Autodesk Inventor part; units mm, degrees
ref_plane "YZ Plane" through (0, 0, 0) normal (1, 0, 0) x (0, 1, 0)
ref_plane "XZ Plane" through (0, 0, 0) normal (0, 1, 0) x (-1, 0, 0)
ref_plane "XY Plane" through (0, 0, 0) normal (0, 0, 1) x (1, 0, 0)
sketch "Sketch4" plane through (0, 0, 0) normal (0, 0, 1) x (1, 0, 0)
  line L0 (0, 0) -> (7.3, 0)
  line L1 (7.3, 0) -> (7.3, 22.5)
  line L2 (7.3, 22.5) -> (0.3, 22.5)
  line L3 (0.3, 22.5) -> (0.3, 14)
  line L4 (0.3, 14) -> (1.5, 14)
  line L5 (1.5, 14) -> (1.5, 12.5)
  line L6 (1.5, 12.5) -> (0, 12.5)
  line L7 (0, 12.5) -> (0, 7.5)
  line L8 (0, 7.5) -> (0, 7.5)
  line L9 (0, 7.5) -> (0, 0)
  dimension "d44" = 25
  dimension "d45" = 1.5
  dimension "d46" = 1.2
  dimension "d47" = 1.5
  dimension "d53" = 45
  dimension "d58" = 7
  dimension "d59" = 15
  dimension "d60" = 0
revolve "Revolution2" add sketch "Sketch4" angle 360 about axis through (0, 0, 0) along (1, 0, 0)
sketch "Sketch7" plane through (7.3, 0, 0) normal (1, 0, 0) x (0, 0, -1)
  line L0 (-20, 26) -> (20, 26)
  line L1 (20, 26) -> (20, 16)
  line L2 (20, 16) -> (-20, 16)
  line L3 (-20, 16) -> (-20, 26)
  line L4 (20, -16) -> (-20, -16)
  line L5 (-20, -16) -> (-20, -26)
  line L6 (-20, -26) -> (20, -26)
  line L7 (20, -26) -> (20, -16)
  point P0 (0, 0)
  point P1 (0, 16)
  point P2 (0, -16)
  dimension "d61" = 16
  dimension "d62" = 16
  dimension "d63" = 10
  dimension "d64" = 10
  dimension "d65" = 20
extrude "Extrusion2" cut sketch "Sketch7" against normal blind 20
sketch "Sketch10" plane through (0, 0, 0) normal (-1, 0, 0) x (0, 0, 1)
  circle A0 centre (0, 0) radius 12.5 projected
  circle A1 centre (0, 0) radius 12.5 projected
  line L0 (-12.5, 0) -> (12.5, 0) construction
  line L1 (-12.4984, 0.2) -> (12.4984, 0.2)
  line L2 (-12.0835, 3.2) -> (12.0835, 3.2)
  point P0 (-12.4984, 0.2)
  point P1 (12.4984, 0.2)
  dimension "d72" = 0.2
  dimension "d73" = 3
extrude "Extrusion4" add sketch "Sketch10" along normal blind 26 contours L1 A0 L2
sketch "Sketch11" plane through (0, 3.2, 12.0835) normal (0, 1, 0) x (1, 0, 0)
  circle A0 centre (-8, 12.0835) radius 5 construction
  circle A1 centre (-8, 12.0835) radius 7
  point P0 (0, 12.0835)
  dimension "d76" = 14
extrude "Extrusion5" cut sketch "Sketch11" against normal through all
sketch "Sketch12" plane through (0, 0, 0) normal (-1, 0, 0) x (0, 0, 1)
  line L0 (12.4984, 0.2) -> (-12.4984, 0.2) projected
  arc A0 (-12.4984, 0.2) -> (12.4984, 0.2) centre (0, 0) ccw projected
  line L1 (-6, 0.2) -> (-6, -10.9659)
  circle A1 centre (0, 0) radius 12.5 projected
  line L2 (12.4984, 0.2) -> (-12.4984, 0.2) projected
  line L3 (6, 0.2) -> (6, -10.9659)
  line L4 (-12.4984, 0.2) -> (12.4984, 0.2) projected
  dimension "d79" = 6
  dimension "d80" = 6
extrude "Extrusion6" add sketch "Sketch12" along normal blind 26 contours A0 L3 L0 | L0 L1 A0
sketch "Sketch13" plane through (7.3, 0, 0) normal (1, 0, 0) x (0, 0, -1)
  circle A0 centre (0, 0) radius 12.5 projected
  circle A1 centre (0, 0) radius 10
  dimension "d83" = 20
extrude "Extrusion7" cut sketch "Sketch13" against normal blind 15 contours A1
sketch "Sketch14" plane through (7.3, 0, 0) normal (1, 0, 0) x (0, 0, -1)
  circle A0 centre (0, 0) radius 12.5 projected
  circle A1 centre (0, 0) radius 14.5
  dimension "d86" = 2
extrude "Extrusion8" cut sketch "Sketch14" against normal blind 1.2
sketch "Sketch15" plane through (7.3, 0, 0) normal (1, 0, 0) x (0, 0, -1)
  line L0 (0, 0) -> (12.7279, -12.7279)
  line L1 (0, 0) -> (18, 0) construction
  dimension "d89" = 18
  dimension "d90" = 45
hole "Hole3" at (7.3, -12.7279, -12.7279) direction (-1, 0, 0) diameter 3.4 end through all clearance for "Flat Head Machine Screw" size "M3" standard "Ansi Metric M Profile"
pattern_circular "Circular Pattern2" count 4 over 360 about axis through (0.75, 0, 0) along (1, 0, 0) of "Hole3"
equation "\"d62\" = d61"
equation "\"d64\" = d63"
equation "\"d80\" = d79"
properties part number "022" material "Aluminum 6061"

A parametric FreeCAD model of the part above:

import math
import FreeCAD as App
import Part
import Sketcher
from FreeCAD import Vector
Q = App.Units.Quantity


def add_polygon(sketch, points):
    """Adds a closed chain of lines whose ends are joined by coincident constraints."""
    first, n = sketch.GeometryCount, len(points)
    for a, b in zip(points, points[1:] + points[:1]):
        sketch.addGeometry(Part.LineSegment(App.Vector(*a, 0), App.Vector(*b, 0)), False)
    for i in range(n):
        sketch.addConstraint(Sketcher.Constraint("Coincident", first + i, 2, first + (i + 1) % n, 1))

doc = App.newDocument("Part")
body = doc.addObject("PartDesign::Body", "Body")

sketch1 = doc.addObject("Sketcher::SketchObject", "Sketch")
body.addObject(sketch1)
sketch1.AttachmentSupport = (doc.XY_Plane, [""])
sketch1.MapMode = "FlatFace"
add_polygon(sketch1, [(0, 12.5), (0, 0), (7.3, 0), (7.3, 22.5), (0.3, 22.5), (0.3, 14), (1.5, 14), (1.5, 12.5)])
sketch1.addConstraint(Sketcher.Constraint("Vertical", 0))
sketch1.addConstraint(Sketcher.Constraint("Horizontal", 1))
sketch1.addConstraint(Sketcher.Constraint("Vertical", 2))
sketch1.addConstraint(Sketcher.Constraint("Horizontal", 3))
sketch1.addConstraint(Sketcher.Constraint("Vertical", 4))
sketch1.addConstraint(Sketcher.Constraint("Horizontal", 5))
sketch1.addConstraint(Sketcher.Constraint("Vertical", 6))
sketch1.addConstraint(Sketcher.Constraint("Horizontal", 7))
sketch1.addConstraint(Sketcher.Constraint("Coincident", 0, 2, -1, 1))
sketch1.addConstraint(Sketcher.Constraint("Equal", 7, 6))
sketch1.addConstraint(Sketcher.Constraint("DistanceX", 3, 2, 3, 1, Q("7 mm")))
sketch1.addConstraint(Sketcher.Constraint("DistanceX", 5, 1, 5, 2, Q("1.2 mm")))
sketch1.addConstraint(Sketcher.Constraint("DistanceX", 7, 2, 7, 1, Q("1.5 mm")))
sketch1.addConstraint(Sketcher.Constraint("DistanceY", 0, 2, 0, 1, Q("12.5 mm")))
sketch1.addConstraint(Sketcher.Constraint("DistanceY", 2, 1, 2, 2, Q("22.5 mm")))
revolution = doc.addObject("PartDesign::Revolution", "Revolution")
body.addObject(revolution)
revolution.Profile = sketch1
revolution.ReferenceAxis = (sketch1, ["H_Axis"])
revolution.Angle = 360

sketch2 = doc.addObject("Sketcher::SketchObject", "Sketch001")
body.addObject(sketch2)
sketch2.AttachmentSupport = (doc.YZ_Plane, [""])
sketch2.MapMode = "FlatFace"
sketch2.AttachmentOffset = App.Placement(Vector(0, 0, 7.3), App.Rotation())
add_polygon(sketch2, [(26, -20), (26, 20), (16, 20), (16, -20)])
add_polygon(sketch2, [(-26, -20), (-16, -20), (-16, 20), (-26, 20)])
sketch2.addConstraint(Sketcher.Constraint("Vertical", 0))
sketch2.addConstraint(Sketcher.Constraint("Horizontal", 1))
sketch2.addConstraint(Sketcher.Constraint("Vertical", 2))
sketch2.addConstraint(Sketcher.Constraint("Horizontal", 3))
sketch2.addConstraint(Sketcher.Constraint("Horizontal", 4))
sketch2.addConstraint(Sketcher.Constraint("Vertical", 5))
sketch2.addConstraint(Sketcher.Constraint("Horizontal", 6))
sketch2.addConstraint(Sketcher.Constraint("Vertical", 7))
sketch2.addConstraint(Sketcher.Constraint("Symmetric", 1, 2, 4, 2, -1, 1))
sketch2.addConstraint(Sketcher.Constraint("Symmetric", 3, 2, 6, 2, -1, 1))
sketch2.addConstraint(Sketcher.Constraint("Horizontal", 3, 2, 4, 2))
sketch2.addConstraint(Sketcher.Constraint("DistanceX", 1, 2, 1, 1, Q("10 mm")))
sketch2.addConstraint(Sketcher.Constraint("DistanceY", -1, 1, 0, 2, Q("20 mm")))
sketch2.addConstraint(Sketcher.Constraint("DistanceX", -1, 1, 1, 2, Q("16 mm")))
pocket1 = doc.addObject("PartDesign::Pocket", "Pocket")
body.addObject(pocket1)
pocket1.Profile = sketch2
pocket1.Length = 20

sketch3 = doc.addObject("Sketcher::SketchObject", "Sketch002")
body.addObject(sketch3)
sketch3.AttachmentSupport = (doc.YZ_Plane, [""])
sketch3.MapMode = "FlatFace"
sketch3.addGeometry(Part.LineSegment(Vector(0.2, -12.5, 0), Vector(0.2, 12.5, 0)), False)
sketch3.addGeometry(Part.ArcOfCircle(Part.Circle(Vector(0, 0, 0), Vector(0, 0, 1), 12.5), math.radians(75.17), math.radians(89.08)), False)
sketch3.addGeometry(Part.LineSegment(Vector(3.2, 12.1, 0), Vector(3.2, -12.1, 0)), False)
sketch3.addGeometry(Part.ArcOfCircle(Part.Circle(Vector(0, 0, 0), Vector(0, 0, 1), 12.5), math.radians(-89.08), math.radians(-75.17)), False)
sketch3.addConstraint(Sketcher.Constraint("Coincident", 0, 2, 1, 2))
sketch3.addConstraint(Sketcher.Constraint("Coincident", 1, 1, 2, 1))
sketch3.addConstraint(Sketcher.Constraint("Coincident", 2, 2, 3, 2))
sketch3.addConstraint(Sketcher.Constraint("Coincident", 3, 1, 0, 1))
sketch3.addConstraint(Sketcher.Constraint("Vertical", 0))
sketch3.addConstraint(Sketcher.Constraint("Vertical", 2))
sketch3.addConstraint(Sketcher.Constraint("Coincident", 1, 3, -1, 1))
sketch3.addConstraint(Sketcher.Constraint("Coincident", 3, 3, -1, 1))
sketch3.addConstraint(Sketcher.Constraint("Equal", 1, 3))
sketch3.addConstraint(Sketcher.Constraint("DistanceX", 0, 2, 1, 1, Q("3 mm")))
sketch3.addConstraint(Sketcher.Constraint("DistanceX", -1, 1, 0, 2, Q("0.2 mm")))
sketch3.addConstraint(Sketcher.Constraint("Radius", 1, Q("12.5 mm")))
pad1 = doc.addObject("PartDesign::Pad", "Pad")
body.addObject(pad1)
pad1.Profile = sketch3
pad1.Length = 26
pad1.Reversed = True

sketch4 = doc.addObject("Sketcher::SketchObject", "Sketch003")
body.addObject(sketch4)
sketch4.AttachmentSupport = (doc.XZ_Plane, [""])
sketch4.MapMode = "FlatFace"
sketch4.AttachmentOffset = App.Placement(Vector(0, 0, -3.2), App.Rotation())
sketch4.addGeometry(Part.Circle(Vector(-8, 0, 0), Vector(0, 0, 1), 7), False)
sketch4.addConstraint(Sketcher.Constraint("PointOnObject", 0, 3, -1))
sketch4.addConstraint(Sketcher.Constraint("Diameter", 0, Q("14 mm")))
sketch4.addConstraint(Sketcher.Constraint("DistanceX", 0, 3, -1, 1, Q("8 mm")))
pocket2 = doc.addObject("PartDesign::Pocket", "Pocket001")
body.addObject(pocket2)
pocket2.Profile = sketch4
pocket2.Type = "ThroughAll"
pocket2.Reversed = True

sketch5 = doc.addObject("Sketcher::SketchObject", "Sketch004")
body.addObject(sketch5)
sketch5.AttachmentSupport = (doc.YZ_Plane, [""])
sketch5.MapMode = "FlatFace"
sketch5.addGeometry(Part.ArcOfCircle(Part.Circle(Vector(0, 0, 0), Vector(0, 0, 1), 13), math.radians(89), math.radians(151)), False)
sketch5.addGeometry(Part.LineSegment(Vector(0, 12, 0), Vector(0, 6, 0)), False)
sketch5.addGeometry(Part.LineSegment(Vector(0, 6, 0), Vector(-11, 6, 0)), False)
sketch5.addGeometry(Part.LineSegment(Vector(0, -6, 0), Vector(0, -12, 0)), False)
sketch5.addGeometry(Part.ArcOfCircle(Part.Circle(Vector(0, 0, 0), Vector(0, 0, 1), 13), math.radians(-151), math.radians(-89)), False)
sketch5.addGeometry(Part.LineSegment(Vector(-11, -6, 0), Vector(0, -6, 0)), False)
sketch5.addConstraint(Sketcher.Constraint("Coincident", 0, 1, 1, 1))
sketch5.addConstraint(Sketcher.Constraint("Coincident", 1, 2, 2, 1))
sketch5.addConstraint(Sketcher.Constraint("Coincident", 2, 2, 0, 2))
sketch5.addConstraint(Sketcher.Constraint("Coincident", 3, 2, 4, 2))
sketch5.addConstraint(Sketcher.Constraint("Coincident", 4, 1, 5, 1))
sketch5.addConstraint(Sketcher.Constraint("Coincident", 5, 2, 3, 1))
sketch5.addConstraint(Sketcher.Constraint("Vertical", 1))
sketch5.addConstraint(Sketcher.Constraint("Horizontal", 2))
sketch5.addConstraint(Sketcher.Constraint("Vertical", 3))
sketch5.addConstraint(Sketcher.Constraint("Horizontal", 5))
sketch5.addConstraint(Sketcher.Constraint("Coincident", 0, 3, -1, 1))
sketch5.addConstraint(Sketcher.Constraint("Coincident", 4, 3, -1, 1))
sketch5.addConstraint(Sketcher.Constraint("Equal", 0, 4))
sketch5.addConstraint(Sketcher.Constraint("Symmetric", 1, 2, 5, 2, -1))
sketch5.addConstraint(Sketcher.Constraint("DistanceY", -1, 1, 1, 2, Q("6 mm")))
sketch5.addConstraint(Sketcher.Constraint("Radius", 0, Q("12.5 mm")))
sketch5.addConstraint(Sketcher.Constraint("DistanceX", -1, 1, 0, 1, Q("0.2 mm")))
pad2 = doc.addObject("PartDesign::Pad", "Pad001")
body.addObject(pad2)
pad2.Profile = sketch5
pad2.Length = 26
pad2.Reversed = True

sketch6 = doc.addObject("Sketcher::SketchObject", "Sketch005")
body.addObject(sketch6)
sketch6.AttachmentSupport = (doc.YZ_Plane, [""])
sketch6.MapMode = "FlatFace"
sketch6.AttachmentOffset = App.Placement(Vector(0, 0, 7.3), App.Rotation())
sketch6.addGeometry(Part.Circle(Vector(0, 0, 0), Vector(0, 0, 1), 10), False)
sketch6.addConstraint(Sketcher.Constraint("Coincident", 0, 3, -1, 1))
sketch6.addConstraint(Sketcher.Constraint("Diameter", 0, Q("20 mm")))
pocket3 = doc.addObject("PartDesign::Pocket", "Pocket002")
body.addObject(pocket3)
pocket3.Profile = sketch6
pocket3.Length = 15

sketch7 = doc.addObject("Sketcher::SketchObject", "Sketch006")
body.addObject(sketch7)
sketch7.AttachmentSupport = (doc.YZ_Plane, [""])
sketch7.MapMode = "FlatFace"
sketch7.AttachmentOffset = App.Placement(Vector(0, 0, 7.3), App.Rotation())
sketch7.addGeometry(Part.Circle(Vector(0, 0, 0), Vector(0, 0, 1), 14), False)
sketch7.addGeometry(Part.Circle(Vector(0, 0, 0), Vector(0, 0, 1), 12), False)
sketch7.addConstraint(Sketcher.Constraint("Coincident", 0, 3, -1, 1))
sketch7.addConstraint(Sketcher.Constraint("Coincident", 1, 3, -1, 1))
sketch7.addConstraint(Sketcher.Constraint("Diameter", 0, Q("29 mm")))
sketch7.addConstraint(Sketcher.Constraint("Diameter", 1, Q("25 mm")))
pocket4 = doc.addObject("PartDesign::Pocket", "Pocket003")
body.addObject(pocket4)
pocket4.Profile = sketch7
pocket4.Length = 1.2

sketch8 = doc.addObject("Sketcher::SketchObject", "Sketch007")
body.addObject(sketch8)
sketch8.AttachmentSupport = (doc.YZ_Plane, [""])
sketch8.MapMode = "FlatFace"
sketch8.AttachmentOffset = App.Placement(Vector(0, 0, 7.3), App.Rotation())
sketch8.addGeometry(Part.Circle(Vector(-12.7, -12.7, 0), Vector(0, 0, 1), 1.7), False)
sketch8.addConstraint(Sketcher.Constraint("Diameter", 0, Q("3.4 mm")))
sketch8.addConstraint(Sketcher.Constraint("DistanceX", 0, 3, -1, 1, Q("12.728 mm")))
sketch8.addConstraint(Sketcher.Constraint("DistanceY", 0, 3, -1, 1, Q("12.728 mm")))
doc.recompute()
hole = doc.addObject("PartDesign::Hole", "Hole")
body.addObject(hole)
hole.Profile = sketch8
hole.ThreadType = "None"
hole.Diameter = 3.4
hole.DepthType = "ThroughAll"
doc.recompute()

polarpattern = doc.addObject("PartDesign::PolarPattern", "PolarPattern")
body.addObject(polarpattern)
polarpattern.Originals = [hole]
polarpattern.Axis = (doc.X_Axis, [""])
polarpattern.Angle = 360
polarpattern.Occurrences = 4
body.Tip = polarpattern

doc.recompute()
